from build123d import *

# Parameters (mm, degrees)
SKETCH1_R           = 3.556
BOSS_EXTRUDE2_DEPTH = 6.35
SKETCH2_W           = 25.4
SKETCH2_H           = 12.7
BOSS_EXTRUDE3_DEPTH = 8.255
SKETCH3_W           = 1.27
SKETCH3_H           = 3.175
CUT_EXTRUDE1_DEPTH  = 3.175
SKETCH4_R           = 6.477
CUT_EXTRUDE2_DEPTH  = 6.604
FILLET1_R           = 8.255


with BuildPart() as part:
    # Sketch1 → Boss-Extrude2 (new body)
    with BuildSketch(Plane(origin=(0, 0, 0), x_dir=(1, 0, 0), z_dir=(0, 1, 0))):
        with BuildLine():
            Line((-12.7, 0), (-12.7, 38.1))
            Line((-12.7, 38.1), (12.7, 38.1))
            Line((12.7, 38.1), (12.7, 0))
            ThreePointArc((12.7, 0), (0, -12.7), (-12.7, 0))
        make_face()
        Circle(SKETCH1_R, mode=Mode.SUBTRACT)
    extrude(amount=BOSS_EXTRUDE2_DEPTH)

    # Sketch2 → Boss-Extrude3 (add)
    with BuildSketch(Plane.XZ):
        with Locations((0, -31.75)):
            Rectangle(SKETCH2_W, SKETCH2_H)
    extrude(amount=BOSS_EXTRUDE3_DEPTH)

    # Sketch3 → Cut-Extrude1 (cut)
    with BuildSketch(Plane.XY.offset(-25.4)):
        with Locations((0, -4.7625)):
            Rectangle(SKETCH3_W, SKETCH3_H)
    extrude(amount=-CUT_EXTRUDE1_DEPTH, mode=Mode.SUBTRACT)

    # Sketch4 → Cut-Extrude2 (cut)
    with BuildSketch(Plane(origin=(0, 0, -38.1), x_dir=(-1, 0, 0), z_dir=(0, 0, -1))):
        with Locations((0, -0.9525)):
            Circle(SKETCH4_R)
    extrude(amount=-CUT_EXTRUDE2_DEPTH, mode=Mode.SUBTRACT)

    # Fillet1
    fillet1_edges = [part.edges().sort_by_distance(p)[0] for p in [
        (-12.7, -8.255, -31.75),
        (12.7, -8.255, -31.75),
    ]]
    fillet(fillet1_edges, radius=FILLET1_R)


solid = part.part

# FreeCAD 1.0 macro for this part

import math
import FreeCAD as App
import Part
import Sketcher
Q = App.Units.Quantity


def edges_at(feature, points):
    """Names of the edges that pass closest to the given points."""
    edges = feature.Shape.Edges
    near = lambda p: min(range(len(edges)), key=lambda i: edges[i].distToShape(Part.Vertex(*p))[0])
    return sorted({f"Edge{near(p) + 1}" for p in points})

doc = App.newDocument("Part")
body = doc.addObject("PartDesign::Body", "Body")

# Sketch on XZ plane
sketch1 = body.newObject("Sketcher::SketchObject", "Sketch")
sketch1.AttachmentSupport = (doc.getObject("XZ_Plane"), [""])
sketch1.MapMode = "FlatFace"
sketch1.addGeometry([
    Part.LineSegment(App.Vector(-12.7, -38.1, 0), App.Vector(-12.7, 0, 0)),  # 0
    Part.ArcOfCircle(Part.Circle(App.Vector(0, 0, 0), App.Vector(0, 0, 1), 12.7), math.radians(0), math.radians(180)),  # 1
    Part.LineSegment(App.Vector(12.7, 0, 0), App.Vector(12.7, -38.1, 0)),  # 2
    Part.LineSegment(App.Vector(12.7, -38.1, 0), App.Vector(-12.7, -38.1, 0)),  # 3
    Part.Circle(App.Vector(0, 0, 0), App.Vector(0, 0, 1), 3.6),  # 4
], False)
sketch1.addConstraint([
    Sketcher.Constraint("Tangent", 0, 2, 1, 2),
    Sketcher.Constraint("Tangent", 1, 1, 2, 1),
    Sketcher.Constraint("Coincident", 2, 2, 3, 1),
    Sketcher.Constraint("Coincident", 3, 2, 0, 1),
    Sketcher.Constraint("Vertical", 0),
    Sketcher.Constraint("Vertical", 2),
    Sketcher.Constraint("Horizontal", 3),
    Sketcher.Constraint("Coincident", 1, 3, -1, 1),
    Sketcher.Constraint("Coincident", 4, 3, -1, 1),
    Sketcher.Constraint("Radius", 1, Q("0.5 in")),
    Sketcher.Constraint("Diameter", 4, Q("0.28 in")),
    Sketcher.Constraint("DistanceY", 0, 1, 0, 2, Q("1.5 in")),
])
pad1 = body.newObject("PartDesign::Pad", "Pad")
pad1.Profile = sketch1
pad1.Length = Q("0.25 in")
pad1.Reversed = True

# Sketch on XZ plane
sketch2 = body.newObject("Sketcher::SketchObject", "Sketch001")
sketch2.AttachmentSupport = (doc.getObject("XZ_Plane"), [""])
sketch2.MapMode = "FlatFace"
sketch2.addGeometry([
    Part.LineSegment(App.Vector(-13, -25, 0), App.Vector(-13, -38, 0)),
    Part.LineSegment(App.Vector(-13, -38, 0), App.Vector(13, -38, 0)),
    Part.LineSegment(App.Vector(13, -38, 0), App.Vector(13, -25, 0)),
    Part.LineSegment(App.Vector(13, -25, 0), App.Vector(-13, -25, 0)),
], False)
sketch2.addConstraint([
    Sketcher.Constraint("Coincident", 0, 2, 1, 1),
    Sketcher.Constraint("Coincident", 1, 2, 2, 1),
    Sketcher.Constraint("Coincident", 2, 2, 3, 1),
    Sketcher.Constraint("Coincident", 3, 2, 0, 1),
    Sketcher.Constraint("Vertical", 0),
    Sketcher.Constraint("Horizontal", 1),
    Sketcher.Constraint("Vertical", 2),
    Sketcher.Constraint("Horizontal", 3),
    Sketcher.Constraint("DistanceX", 1, 1, 1, 2, Q("1 in")),
    Sketcher.Constraint("DistanceY", 0, 2, 0, 1, Q("0.5 in")),
    Sketcher.Constraint("DistanceY", 2, 2, -1, 1, Q("1 in")),
    Sketcher.Constraint("DistanceX", 0, 2, -1, 1, Q("0.5 in")),
])
pad2 = body.newObject("PartDesign::Pad", "Pad001")
pad2.Profile = sketch2
pad2.Length = Q("0.325 in")

# Sketch on XY plane
sketch3 = body.newObject("Sketcher::SketchObject", "Sketch002")
sketch3.AttachmentSupport = (doc.getObject("XY_Plane"), [""])
sketch3.MapMode = "FlatFace"
sketch3.AttachmentOffset = App.Placement(App.Vector(0, 0, -1 * 25.4), App.Rotation())
sketch3.addGeometry([
    Part.LineSegment(App.Vector(-0.6, -3.2, 0), App.Vector(-0.6, -6.3, 0)),
    Part.LineSegment(App.Vector(-0.6, -6.3, 0), App.Vector(0.6, -6.3, 0)),
    Part.LineSegment(App.Vector(0.6, -6.3, 0), App.Vector(0.6, -3.2, 0)),
    Part.LineSegment(App.Vector(0.6, -3.2, 0), App.Vector(-0.6, -3.2, 0)),
], False)
sketch3.addConstraint([
    Sketcher.Constraint("Coincident", 0, 2, 1, 1),
    Sketcher.Constraint("Coincident", 1, 2, 2, 1),
    Sketcher.Constraint("Coincident", 2, 2, 3, 1),
    Sketcher.Constraint("Coincident", 3, 2, 0, 1),
    Sketcher.Constraint("Vertical", 0),
    Sketcher.Constraint("Horizontal", 1),
    Sketcher.Constraint("Vertical", 2),
    Sketcher.Constraint("Horizontal", 3),
    Sketcher.Constraint("DistanceX", 1, 1, 1, 2, Q("0.05 in")),
    Sketcher.Constraint("DistanceY", 0, 2, 0, 1, Q("0.125 in")),
    Sketcher.Constraint("DistanceY", 0, 2, -1, 1, Q("0.25 in")),
    Sketcher.Constraint("DistanceX", 0, 2, -1, 1, Q("0.025 in")),
])
pocket1 = body.newObject("PartDesign::Pocket", "Pocket")
pocket1.Profile = sketch3
pocket1.Length = Q("0.125 in")

# Sketch on XY plane
sketch4 = body.newObject("Sketcher::SketchObject", "Sketch003")
sketch4.AttachmentSupport = (doc.getObject("XY_Plane"), [""])
sketch4.MapMode = "FlatFace"
sketch4.AttachmentOffset = App.Placement(App.Vector(0, 0, -1.5 * 25.4), App.Rotation())
sketch4.addGeometry(Part.Circle(App.Vector(0, -1, 0), App.Vector(0, 0, 1), 6), False)
sketch4.addConstraint([
    Sketcher.Constraint("PointOnObject", 0, 3, -2),
    Sketcher.Constraint("Diameter", 0, Q("0.51 in")),
    Sketcher.Constraint("DistanceY", 0, 3, -1, 1, Q("0.0375 in")),
])
pocket2 = body.newObject("PartDesign::Pocket", "Pocket001")
pocket2.Profile = sketch4
pocket2.Length = Q("0.26 in")
pocket2.Reversed = True
doc.recompute()

fillet = body.newObject("PartDesign::Fillet", "Fillet")
fillet.Base = (pocket2, edges_at(pocket2, [(-12.7, -8.255, -31.75), (12.7, -8.255, -31.75)]))
fillet.Radius = Q("0.325 in")

doc.recompute()
